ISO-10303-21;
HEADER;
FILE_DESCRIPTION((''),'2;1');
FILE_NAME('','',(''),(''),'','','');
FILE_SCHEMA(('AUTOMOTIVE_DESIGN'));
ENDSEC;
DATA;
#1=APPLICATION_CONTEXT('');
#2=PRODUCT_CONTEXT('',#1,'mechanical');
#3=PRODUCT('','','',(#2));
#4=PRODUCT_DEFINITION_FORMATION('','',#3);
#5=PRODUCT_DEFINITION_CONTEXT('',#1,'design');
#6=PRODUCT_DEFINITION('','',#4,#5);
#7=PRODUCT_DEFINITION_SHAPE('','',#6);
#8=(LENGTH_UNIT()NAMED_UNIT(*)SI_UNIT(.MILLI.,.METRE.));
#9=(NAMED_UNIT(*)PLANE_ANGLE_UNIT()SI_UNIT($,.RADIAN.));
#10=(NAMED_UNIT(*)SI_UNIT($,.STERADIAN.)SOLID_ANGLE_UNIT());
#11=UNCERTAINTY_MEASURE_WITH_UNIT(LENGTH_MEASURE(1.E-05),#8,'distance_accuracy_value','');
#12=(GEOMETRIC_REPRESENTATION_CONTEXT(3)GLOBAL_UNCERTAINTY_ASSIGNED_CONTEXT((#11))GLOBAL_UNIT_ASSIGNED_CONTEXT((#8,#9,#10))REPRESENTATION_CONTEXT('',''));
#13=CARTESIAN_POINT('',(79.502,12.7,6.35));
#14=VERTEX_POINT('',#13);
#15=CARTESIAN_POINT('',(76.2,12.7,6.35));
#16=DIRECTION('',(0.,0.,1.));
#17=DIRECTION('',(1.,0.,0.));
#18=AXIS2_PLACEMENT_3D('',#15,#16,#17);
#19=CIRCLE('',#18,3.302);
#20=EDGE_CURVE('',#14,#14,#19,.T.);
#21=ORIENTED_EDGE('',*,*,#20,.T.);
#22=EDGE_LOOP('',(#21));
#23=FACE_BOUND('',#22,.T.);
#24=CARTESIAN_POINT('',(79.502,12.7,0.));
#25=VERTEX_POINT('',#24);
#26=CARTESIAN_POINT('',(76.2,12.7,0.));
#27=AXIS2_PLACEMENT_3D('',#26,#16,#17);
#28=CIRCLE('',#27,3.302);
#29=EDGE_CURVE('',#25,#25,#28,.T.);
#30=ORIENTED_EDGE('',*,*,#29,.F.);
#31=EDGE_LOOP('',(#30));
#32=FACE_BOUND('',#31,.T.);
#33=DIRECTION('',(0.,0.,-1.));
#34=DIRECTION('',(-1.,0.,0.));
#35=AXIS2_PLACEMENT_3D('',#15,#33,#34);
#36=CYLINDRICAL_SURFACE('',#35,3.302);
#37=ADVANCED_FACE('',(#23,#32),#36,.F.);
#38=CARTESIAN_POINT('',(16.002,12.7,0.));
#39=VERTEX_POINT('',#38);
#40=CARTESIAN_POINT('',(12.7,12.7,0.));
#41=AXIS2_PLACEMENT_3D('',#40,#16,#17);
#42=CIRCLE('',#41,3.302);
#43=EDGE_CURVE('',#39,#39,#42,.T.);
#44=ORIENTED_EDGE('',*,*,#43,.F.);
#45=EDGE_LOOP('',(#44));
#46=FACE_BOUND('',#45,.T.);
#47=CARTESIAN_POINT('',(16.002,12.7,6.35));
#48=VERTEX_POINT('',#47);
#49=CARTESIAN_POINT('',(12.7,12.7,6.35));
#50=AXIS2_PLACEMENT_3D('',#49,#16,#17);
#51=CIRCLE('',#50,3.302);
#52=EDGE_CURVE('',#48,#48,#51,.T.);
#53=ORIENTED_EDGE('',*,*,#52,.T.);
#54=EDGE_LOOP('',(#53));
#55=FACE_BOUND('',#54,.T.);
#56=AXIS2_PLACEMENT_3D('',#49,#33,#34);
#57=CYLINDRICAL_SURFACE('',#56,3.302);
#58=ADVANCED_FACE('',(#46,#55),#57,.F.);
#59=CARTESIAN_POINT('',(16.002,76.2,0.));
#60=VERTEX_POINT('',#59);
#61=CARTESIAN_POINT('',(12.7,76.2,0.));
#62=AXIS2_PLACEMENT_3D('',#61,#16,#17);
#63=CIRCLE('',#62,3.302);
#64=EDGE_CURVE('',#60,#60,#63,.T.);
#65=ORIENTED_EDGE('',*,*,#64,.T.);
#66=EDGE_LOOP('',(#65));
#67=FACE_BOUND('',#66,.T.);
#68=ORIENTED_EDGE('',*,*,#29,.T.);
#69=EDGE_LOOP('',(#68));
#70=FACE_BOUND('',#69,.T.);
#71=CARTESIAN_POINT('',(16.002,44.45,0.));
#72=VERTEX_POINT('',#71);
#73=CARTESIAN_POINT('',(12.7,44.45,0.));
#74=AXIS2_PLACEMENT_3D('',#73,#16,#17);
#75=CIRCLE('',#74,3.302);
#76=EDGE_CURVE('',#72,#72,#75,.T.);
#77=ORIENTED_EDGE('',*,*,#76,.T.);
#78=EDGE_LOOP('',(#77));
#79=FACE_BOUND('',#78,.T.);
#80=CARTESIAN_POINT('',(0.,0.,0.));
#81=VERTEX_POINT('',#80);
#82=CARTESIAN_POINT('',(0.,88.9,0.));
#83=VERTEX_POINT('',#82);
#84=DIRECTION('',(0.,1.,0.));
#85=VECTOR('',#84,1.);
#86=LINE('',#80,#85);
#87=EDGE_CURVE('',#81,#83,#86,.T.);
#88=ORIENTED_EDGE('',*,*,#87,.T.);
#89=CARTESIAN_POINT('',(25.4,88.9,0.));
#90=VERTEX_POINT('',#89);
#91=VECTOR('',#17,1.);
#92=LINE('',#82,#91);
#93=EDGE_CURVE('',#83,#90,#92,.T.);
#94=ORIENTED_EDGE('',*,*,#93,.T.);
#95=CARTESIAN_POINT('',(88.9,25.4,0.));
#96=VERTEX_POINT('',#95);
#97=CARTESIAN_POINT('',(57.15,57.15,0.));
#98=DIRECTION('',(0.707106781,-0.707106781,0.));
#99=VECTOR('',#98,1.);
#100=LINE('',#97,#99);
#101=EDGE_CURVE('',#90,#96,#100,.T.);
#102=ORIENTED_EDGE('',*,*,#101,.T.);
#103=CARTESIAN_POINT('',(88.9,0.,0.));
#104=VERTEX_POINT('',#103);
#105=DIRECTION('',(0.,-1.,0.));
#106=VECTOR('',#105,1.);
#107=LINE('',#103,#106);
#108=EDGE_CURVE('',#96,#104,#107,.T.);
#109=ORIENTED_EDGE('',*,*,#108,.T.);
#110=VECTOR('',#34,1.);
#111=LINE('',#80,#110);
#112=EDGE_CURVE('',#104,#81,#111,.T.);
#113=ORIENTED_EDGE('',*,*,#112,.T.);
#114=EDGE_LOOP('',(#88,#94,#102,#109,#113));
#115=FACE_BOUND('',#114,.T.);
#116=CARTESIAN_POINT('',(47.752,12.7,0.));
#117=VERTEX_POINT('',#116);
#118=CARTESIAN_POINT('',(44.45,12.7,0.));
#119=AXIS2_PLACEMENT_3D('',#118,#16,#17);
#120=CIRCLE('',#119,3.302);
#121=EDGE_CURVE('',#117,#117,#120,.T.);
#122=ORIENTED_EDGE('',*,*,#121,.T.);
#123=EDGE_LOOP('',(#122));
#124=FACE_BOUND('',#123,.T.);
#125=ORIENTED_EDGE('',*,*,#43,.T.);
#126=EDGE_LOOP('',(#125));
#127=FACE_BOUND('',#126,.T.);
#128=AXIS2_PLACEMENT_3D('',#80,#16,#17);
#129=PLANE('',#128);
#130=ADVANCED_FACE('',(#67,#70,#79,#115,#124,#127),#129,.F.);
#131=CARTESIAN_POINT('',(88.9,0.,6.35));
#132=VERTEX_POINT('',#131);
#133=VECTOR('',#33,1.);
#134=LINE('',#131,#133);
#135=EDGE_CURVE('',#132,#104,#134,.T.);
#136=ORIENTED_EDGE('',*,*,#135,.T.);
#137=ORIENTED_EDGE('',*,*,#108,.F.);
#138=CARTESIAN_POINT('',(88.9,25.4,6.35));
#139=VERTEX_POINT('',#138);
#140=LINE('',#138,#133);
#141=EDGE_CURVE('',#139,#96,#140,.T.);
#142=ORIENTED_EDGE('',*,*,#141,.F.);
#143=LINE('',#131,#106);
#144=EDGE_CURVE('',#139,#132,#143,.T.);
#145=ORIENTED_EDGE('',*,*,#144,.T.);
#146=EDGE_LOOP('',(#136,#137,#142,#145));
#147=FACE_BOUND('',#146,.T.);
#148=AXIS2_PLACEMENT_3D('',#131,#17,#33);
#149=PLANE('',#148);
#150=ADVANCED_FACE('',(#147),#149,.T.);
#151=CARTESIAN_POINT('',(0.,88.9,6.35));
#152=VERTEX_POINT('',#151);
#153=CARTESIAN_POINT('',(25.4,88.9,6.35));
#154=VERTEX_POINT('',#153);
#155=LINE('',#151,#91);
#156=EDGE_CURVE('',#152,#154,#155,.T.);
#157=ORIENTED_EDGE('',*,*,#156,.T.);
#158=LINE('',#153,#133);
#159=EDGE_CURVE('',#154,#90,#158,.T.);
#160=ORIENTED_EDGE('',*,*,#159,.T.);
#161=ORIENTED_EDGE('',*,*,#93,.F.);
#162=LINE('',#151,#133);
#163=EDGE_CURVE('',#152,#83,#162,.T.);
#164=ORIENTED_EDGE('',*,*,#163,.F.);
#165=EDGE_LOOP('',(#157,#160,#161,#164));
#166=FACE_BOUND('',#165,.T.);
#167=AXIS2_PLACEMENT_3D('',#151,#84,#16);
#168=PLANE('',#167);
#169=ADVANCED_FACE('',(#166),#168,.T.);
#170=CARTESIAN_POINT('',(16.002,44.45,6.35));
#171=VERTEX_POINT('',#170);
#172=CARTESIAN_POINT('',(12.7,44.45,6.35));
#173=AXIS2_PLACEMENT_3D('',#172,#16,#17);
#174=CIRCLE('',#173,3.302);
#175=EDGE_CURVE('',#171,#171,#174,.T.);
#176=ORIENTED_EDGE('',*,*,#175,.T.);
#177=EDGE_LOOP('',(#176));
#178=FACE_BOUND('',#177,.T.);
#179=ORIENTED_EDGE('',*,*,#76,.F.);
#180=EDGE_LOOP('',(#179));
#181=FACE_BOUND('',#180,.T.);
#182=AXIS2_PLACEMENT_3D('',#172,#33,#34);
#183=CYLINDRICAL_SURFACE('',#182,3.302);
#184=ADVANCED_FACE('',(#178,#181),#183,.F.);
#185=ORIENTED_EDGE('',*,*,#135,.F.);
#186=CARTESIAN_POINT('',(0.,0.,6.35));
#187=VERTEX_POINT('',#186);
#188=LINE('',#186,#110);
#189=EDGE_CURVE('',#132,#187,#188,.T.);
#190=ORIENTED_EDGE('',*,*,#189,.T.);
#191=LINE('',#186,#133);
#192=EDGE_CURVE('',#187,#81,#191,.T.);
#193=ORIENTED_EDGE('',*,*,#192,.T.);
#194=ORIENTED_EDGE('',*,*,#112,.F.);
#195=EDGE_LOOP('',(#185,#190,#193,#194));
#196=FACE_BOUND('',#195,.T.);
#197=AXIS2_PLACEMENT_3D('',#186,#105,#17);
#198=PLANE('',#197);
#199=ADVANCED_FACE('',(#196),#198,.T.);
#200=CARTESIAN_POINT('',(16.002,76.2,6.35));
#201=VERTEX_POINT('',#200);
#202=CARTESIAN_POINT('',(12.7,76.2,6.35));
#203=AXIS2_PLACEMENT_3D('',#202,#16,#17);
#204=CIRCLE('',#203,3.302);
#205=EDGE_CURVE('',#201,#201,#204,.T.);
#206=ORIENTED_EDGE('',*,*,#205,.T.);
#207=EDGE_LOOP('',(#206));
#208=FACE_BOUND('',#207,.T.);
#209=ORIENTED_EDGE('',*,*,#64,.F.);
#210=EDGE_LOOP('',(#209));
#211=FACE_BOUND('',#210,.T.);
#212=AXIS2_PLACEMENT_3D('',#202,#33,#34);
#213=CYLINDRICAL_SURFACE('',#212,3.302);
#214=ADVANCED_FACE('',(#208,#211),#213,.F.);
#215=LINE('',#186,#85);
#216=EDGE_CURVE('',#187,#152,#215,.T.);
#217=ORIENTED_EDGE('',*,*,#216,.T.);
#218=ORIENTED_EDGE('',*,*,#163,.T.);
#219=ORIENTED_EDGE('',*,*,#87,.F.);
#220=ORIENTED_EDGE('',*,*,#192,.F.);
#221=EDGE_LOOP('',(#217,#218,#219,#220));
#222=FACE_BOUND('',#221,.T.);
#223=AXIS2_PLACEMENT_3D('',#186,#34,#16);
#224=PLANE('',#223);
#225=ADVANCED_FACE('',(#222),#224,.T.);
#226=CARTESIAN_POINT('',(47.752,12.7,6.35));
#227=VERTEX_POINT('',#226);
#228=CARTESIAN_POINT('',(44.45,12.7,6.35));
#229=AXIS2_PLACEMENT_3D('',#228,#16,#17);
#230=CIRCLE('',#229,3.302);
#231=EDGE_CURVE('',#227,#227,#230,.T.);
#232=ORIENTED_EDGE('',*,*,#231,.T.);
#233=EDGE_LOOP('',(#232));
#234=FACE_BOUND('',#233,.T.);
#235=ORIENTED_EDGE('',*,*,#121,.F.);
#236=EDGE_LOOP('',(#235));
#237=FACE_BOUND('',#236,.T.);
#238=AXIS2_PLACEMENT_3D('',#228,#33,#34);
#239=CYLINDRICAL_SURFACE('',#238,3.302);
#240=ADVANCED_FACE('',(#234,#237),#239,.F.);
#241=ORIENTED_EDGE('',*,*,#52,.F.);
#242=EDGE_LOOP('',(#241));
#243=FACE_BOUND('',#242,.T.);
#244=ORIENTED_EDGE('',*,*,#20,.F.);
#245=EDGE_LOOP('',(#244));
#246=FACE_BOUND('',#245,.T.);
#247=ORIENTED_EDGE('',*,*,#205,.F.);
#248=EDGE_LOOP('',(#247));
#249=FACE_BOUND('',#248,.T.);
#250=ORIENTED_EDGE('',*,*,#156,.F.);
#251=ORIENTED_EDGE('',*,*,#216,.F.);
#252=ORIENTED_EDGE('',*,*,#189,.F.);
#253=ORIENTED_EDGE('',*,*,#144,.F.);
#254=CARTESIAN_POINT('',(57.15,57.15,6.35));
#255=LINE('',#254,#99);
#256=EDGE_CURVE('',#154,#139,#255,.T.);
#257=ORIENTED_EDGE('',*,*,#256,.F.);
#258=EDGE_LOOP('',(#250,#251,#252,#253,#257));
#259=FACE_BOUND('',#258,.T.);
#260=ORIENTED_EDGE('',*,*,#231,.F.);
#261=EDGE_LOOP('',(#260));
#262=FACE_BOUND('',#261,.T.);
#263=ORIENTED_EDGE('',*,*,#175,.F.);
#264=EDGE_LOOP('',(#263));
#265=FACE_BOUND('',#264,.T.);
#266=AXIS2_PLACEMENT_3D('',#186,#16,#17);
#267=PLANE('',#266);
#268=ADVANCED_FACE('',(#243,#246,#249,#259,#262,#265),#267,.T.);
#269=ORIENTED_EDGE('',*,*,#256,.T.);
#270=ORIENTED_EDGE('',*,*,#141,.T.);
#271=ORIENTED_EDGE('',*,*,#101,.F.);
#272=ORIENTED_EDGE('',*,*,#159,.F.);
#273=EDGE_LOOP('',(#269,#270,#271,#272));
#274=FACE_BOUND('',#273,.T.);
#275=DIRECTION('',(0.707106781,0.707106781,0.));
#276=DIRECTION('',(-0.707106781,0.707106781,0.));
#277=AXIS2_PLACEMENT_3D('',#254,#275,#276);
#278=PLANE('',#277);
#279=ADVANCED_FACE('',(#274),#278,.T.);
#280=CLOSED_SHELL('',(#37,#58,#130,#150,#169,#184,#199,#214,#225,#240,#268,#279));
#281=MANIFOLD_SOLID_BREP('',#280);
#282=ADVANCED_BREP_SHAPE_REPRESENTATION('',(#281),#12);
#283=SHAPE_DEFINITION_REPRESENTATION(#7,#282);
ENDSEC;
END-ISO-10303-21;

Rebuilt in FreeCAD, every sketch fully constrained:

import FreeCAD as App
import Part
import Sketcher
from FreeCAD import Vector
Q = App.Units.Quantity

doc = App.newDocument("Part")
params = doc.addObject("Spreadsheet::Sheet", "Params")
for row, (alias, value) in enumerate([
    ("sketch1_diameter", "0.26 in"),
    ("sketch1_width", "1 in"),
    ("sketch1_width2", "3.5 in"),
    ("pad1_length", "0.25 in"),
], start=1):
    params.set(f"A{row}", alias)
    params.set(f"B{row}", "=" + value)
    params.setAlias(f"B{row}", alias)

body = doc.addObject("PartDesign::Body", "Body")

# Sketch on XY plane
sketch1 = body.newObject("Sketcher::SketchObject", "Sketch")
sketch1.AttachmentSupport = (doc.getObject("XY_Plane"), [""])
sketch1.MapMode = "FlatFace"
sketch1.addGeometry([
    Part.LineSegment(Vector(0, 0, 0), Vector(88.9, 0, 0)),  # 0
    Part.LineSegment(Vector(88.9, 0, 0), Vector(88.9, 25.4, 0)),  # 1
    Part.LineSegment(Vector(88.9, 25.4, 0), Vector(25.4, 88.9, 0)),  # 2
    Part.LineSegment(Vector(25.4, 88.9, 0), Vector(0, 88.9, 0)),  # 3
    Part.LineSegment(Vector(0, 88.9, 0), Vector(0, 0, 0)),  # 4
    Part.Circle(Vector(76.2, 12.7, 0), Vector(0, 0, 1), 3.3),  # 5
    Part.Circle(Vector(44.5, 12.7, 0), Vector(0, 0, 1), 3.3),  # 6
    Part.Circle(Vector(12.7, 12.7, 0), Vector(0, 0, 1), 3.3),  # 7
    Part.Circle(Vector(12.7, 44.5, 0), Vector(0, 0, 1), 3.3),  # 8
    Part.Circle(Vector(12.7, 76.2, 0), Vector(0, 0, 1), 3.3),  # 9
], False)
sketch1.addConstraint([
    Sketcher.Constraint("Coincident", 0, 2, 1, 1),
    Sketcher.Constraint("Coincident", 1, 2, 2, 1),
    Sketcher.Constraint("Coincident", 2, 2, 3, 1),
    Sketcher.Constraint("Coincident", 3, 2, 4, 1),
    Sketcher.Constraint("Coincident", 4, 2, 0, 1),
    Sketcher.Constraint("Horizontal", 0),
    Sketcher.Constraint("Vertical", 1),
    Sketcher.Constraint("Horizontal", 3),
    Sketcher.Constraint("Vertical", 4),
    Sketcher.Constraint("Coincident", 4, 2, -1, 1),
    Sketcher.Constraint("Equal", 5, 6),
    Sketcher.Constraint("Equal", 6, 7),
    Sketcher.Constraint("Equal", 7, 8),
    Sketcher.Constraint("Equal", 8, 9),
    Sketcher.Constraint("Horizontal", 5, 3, 6, 3),
    Sketcher.Constraint("Horizontal", 6, 3, 7, 3),
    Sketcher.Constraint("Vertical", 7, 3, 8, 3),
    Sketcher.Constraint("Vertical", 8, 3, 9, 3),
    Sketcher.Constraint("Equal", 3, 1),
    Sketcher.Constraint("Equal", 0, 4),
    Sketcher.Constraint("Diameter", 5, Q("0.26 in")),
    Sketcher.Constraint("DistanceX", 3, 2, 3, 1, Q("1 in")),
    Sketcher.Constraint("DistanceX", 0, 1, 0, 2, Q("3.5 in")),
    Sketcher.Constraint("DistanceX", -1, 1, 5, 3, Q("3 in")),
    Sketcher.Constraint("DistanceY", -1, 1, 9, 3, Q("3 in")),
    Sketcher.Constraint("DistanceX", 7, 3, 0, 2, Q("3 in")),
    Sketcher.Constraint("DistanceY", 7, 3, 2, 2, Q("3 in")),
    Sketcher.Constraint("DistanceX", -1, 1, 6, 3, Q("1.75 in")),
    Sketcher.Constraint("DistanceY", -1, 1, 8, 3, Q("1.75 in")),
])
sketch1.setExpression("Constraints[20]", "Params.sketch1_diameter")
sketch1.setExpression("Constraints[21]", "Params.sketch1_width")
sketch1.setExpression("Constraints[22]", "Params.sketch1_width2")
pad1 = body.newObject("PartDesign::Pad", "Pad")
pad1.Profile = sketch1
pad1.setExpression("Length", "Params.pad1_length")

doc.recompute()
